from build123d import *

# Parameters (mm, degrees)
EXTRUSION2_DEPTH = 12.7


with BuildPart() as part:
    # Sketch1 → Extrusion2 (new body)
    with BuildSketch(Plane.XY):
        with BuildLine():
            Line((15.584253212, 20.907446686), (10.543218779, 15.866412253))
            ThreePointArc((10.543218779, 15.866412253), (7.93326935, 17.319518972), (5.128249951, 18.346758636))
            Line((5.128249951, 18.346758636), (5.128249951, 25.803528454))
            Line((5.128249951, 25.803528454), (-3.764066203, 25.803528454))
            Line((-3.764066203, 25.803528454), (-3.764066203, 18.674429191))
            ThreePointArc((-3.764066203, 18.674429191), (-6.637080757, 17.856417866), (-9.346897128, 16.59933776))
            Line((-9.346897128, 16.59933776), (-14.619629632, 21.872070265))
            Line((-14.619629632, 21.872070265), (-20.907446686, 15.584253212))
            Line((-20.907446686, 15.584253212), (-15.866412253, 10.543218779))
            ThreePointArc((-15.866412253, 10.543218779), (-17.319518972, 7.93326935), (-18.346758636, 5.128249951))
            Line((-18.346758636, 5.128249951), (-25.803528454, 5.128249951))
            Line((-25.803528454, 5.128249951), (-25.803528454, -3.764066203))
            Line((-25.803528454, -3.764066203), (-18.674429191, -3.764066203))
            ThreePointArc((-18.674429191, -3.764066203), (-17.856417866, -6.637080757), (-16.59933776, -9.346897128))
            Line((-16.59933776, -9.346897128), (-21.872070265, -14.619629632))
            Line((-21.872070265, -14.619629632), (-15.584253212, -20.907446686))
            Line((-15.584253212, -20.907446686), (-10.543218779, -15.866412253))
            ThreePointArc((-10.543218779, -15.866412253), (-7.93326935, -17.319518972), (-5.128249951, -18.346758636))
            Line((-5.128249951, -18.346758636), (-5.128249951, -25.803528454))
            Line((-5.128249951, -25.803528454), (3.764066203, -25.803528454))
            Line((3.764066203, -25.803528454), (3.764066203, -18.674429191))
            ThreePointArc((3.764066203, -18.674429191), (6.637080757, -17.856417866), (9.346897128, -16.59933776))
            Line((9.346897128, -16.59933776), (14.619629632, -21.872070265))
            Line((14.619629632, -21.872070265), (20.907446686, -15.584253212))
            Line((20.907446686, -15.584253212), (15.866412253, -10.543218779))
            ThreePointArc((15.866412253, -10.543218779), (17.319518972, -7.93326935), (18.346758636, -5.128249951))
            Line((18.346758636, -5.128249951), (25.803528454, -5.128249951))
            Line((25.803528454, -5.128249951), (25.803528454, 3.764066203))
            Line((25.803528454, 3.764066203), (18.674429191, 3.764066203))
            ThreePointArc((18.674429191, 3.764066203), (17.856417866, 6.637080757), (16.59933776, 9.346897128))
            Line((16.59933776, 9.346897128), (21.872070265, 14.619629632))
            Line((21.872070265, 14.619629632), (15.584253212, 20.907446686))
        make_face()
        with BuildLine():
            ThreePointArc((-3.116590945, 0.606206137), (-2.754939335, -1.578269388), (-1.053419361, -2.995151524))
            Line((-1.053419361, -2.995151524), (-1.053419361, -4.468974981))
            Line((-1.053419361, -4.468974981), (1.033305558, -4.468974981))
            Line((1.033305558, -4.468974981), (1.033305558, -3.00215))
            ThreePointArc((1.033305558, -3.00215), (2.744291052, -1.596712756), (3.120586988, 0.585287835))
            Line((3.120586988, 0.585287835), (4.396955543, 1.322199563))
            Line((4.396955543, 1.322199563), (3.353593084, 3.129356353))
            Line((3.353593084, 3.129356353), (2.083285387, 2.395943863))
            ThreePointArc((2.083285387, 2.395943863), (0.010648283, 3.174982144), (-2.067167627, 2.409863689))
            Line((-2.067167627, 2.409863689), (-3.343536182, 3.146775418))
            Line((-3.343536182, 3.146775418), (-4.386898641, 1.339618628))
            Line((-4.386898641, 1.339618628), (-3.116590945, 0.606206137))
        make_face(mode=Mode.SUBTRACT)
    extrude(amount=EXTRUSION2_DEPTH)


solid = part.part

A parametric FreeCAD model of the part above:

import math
import FreeCAD as App
import Part
import Sketcher
from FreeCAD import Vector
Q = App.Units.Quantity

doc = App.newDocument("Part")
body = doc.addObject("PartDesign::Body", "Body")

sketch1 = body.newObject("Sketcher::SketchObject", "Sketch")
sketch1.AttachmentSupport = (doc.getObject("XY_Plane"), [""])
sketch1.MapMode = "FlatFace"
sketch1.addGeometry(Part.LineSegment(Vector(15.6, 20.9, 0), Vector(10.5, 15.9, 0)), False)
sketch1.addGeometry(Part.ArcOfCircle(Part.Circle(Vector(0, 0, 0), Vector(0, 0, 1), 19.1), math.radians(56.4), math.radians(74.38)), False)
sketch1.addGeometry(Part.LineSegment(Vector(5.1, 18.3, 0), Vector(5.1, 25.8, 0)), False)
sketch1.addGeometry(Part.LineSegment(Vector(5.1, 25.8, 0), Vector(-3.8, 25.8, 0)), False)
sketch1.addGeometry(Part.LineSegment(Vector(-3.8, 25.8, 0), Vector(-3.8, 18.7, 0)), False)
sketch1.addGeometry(Part.ArcOfCircle(Part.Circle(Vector(0, 0, 0), Vector(0, 0, 1), 19.1), math.radians(101.4), math.radians(119.38)), False)
sketch1.addGeometry(Part.LineSegment(Vector(-9.3, 16.6, 0), Vector(-14.6, 21.9, 0)), False)
sketch1.addGeometry(Part.LineSegment(Vector(-14.6, 21.9, 0), Vector(-20.9, 15.6, 0)), False)
sketch1.addGeometry(Part.LineSegment(Vector(-20.9, 15.6, 0), Vector(-15.9, 10.5, 0)), False)
sketch1.addGeometry(Part.ArcOfCircle(Part.Circle(Vector(0, 0, 0), Vector(0, 0, 1), 19.1), math.radians(146.4), math.radians(164.38)), False)
sketch1.addGeometry(Part.LineSegment(Vector(-18.3, 5.1, 0), Vector(-25.8, 5.1, 0)), False)
sketch1.addGeometry(Part.LineSegment(Vector(-25.8, 5.1, 0), Vector(-25.8, -3.8, 0)), False)
sketch1.addGeometry(Part.LineSegment(Vector(-25.8, -3.8, 0), Vector(-18.7, -3.8, 0)), False)
sketch1.addGeometry(Part.ArcOfCircle(Part.Circle(Vector(0, 0, 0), Vector(0, 0, 1), 19.1), math.radians(-168.6), math.radians(-150.62)), False)
sketch1.addGeometry(Part.LineSegment(Vector(-16.6, -9.3, 0), Vector(-21.9, -14.6, 0)), False)
sketch1.addGeometry(Part.LineSegment(Vector(-21.9, -14.6, 0), Vector(-15.6, -20.9, 0)), False)
sketch1.addGeometry(Part.LineSegment(Vector(-15.6, -20.9, 0), Vector(-10.5, -15.9, 0)), False)
sketch1.addGeometry(Part.ArcOfCircle(Part.Circle(Vector(0, 0, 0), Vector(0, 0, 1), 19.1), math.radians(-123.6), math.radians(-105.62)), False)
sketch1.addGeometry(Part.LineSegment(Vector(-5.1, -18.3, 0), Vector(-5.1, -25.8, 0)), False)
sketch1.addGeometry(Part.LineSegment(Vector(-5.1, -25.8, 0), Vector(3.8, -25.8, 0)), False)
sketch1.addGeometry(Part.LineSegment(Vector(3.8, -25.8, 0), Vector(3.8, -18.7, 0)), False)
sketch1.addGeometry(Part.ArcOfCircle(Part.Circle(Vector(0, 0, 0), Vector(0, 0, 1), 19.1), math.radians(-78.6), math.radians(-60.62)), False)
sketch1.addGeometry(Part.LineSegment(Vector(9.3, -16.6, 0), Vector(14.6, -21.9, 0)), False)
sketch1.addGeometry(Part.LineSegment(Vector(14.6, -21.9, 0), Vector(20.9, -15.6, 0)), False)
sketch1.addGeometry(Part.LineSegment(Vector(20.9, -15.6, 0), Vector(15.9, -10.5, 0)), False)
sketch1.addGeometry(Part.ArcOfCircle(Part.Circle(Vector(0, 0, 0), Vector(0, 0, 1), 19.1), math.radians(-33.6), math.radians(-15.62)), False)
sketch1.addGeometry(Part.LineSegment(Vector(18.3, -5.1, 0), Vector(25.8, -5.1, 0)), False)
sketch1.addGeometry(Part.LineSegment(Vector(25.8, -5.1, 0), Vector(25.8, 3.8, 0)), False)
sketch1.addGeometry(Part.LineSegment(Vector(25.8, 3.8, 0), Vector(18.7, 3.8, 0)), False)
sketch1.addGeometry(Part.ArcOfCircle(Part.Circle(Vector(0, 0, 0), Vector(0, 0, 1), 19.1), math.radians(11.4), math.radians(29.38)), False)
sketch1.addGeometry(Part.LineSegment(Vector(16.6, 9.3, 0), Vector(21.9, 14.6, 0)), False)
sketch1.addGeometry(Part.LineSegment(Vector(21.9, 14.6, 0), Vector(15.6, 20.9, 0)), False)
sketch1.addGeometry(Part.ArcOfCircle(Part.Circle(Vector(0, 0, 0), Vector(0, 0, 1), 3.2), math.radians(169), math.radians(251)), False)
sketch1.addGeometry(Part.LineSegment(Vector(-3.1, 0.6, 0), Vector(-4.4, 1.3, 0)), False)
sketch1.addGeometry(Part.LineSegment(Vector(-4.4, 1.3, 0), Vector(-3.3, 3.1, 0)), False)
sketch1.addGeometry(Part.LineSegment(Vector(-3.3, 3.1, 0), Vector(-2.1, 2.4, 0)), False)
sketch1.addGeometry(Part.ArcOfCircle(Part.Circle(Vector(0, 0, 0), Vector(0, 0, 1), 3.2), math.radians(49), math.radians(131)), False)
sketch1.addGeometry(Part.LineSegment(Vector(2.1, 2.4, 0), Vector(3.4, 3.1, 0)), False)
sketch1.addGeometry(Part.LineSegment(Vector(3.4, 3.1, 0), Vector(4.4, 1.3, 0)), False)
sketch1.addGeometry(Part.LineSegment(Vector(4.4, 1.3, 0), Vector(3.1, 0.6, 0)), False)
sketch1.addGeometry(Part.ArcOfCircle(Part.Circle(Vector(0, 0, 0), Vector(0, 0, 1), 3.2), math.radians(-71), math.radians(11)), False)
sketch1.addGeometry(Part.LineSegment(Vector(1, -3, 0), Vector(1, -4.5, 0)), False)
sketch1.addGeometry(Part.LineSegment(Vector(1, -4.5, 0), Vector(-1.1, -4.5, 0)), False)
sketch1.addGeometry(Part.LineSegment(Vector(-1.1, -4.5, 0), Vector(-1.1, -3, 0)), False)
sketch1.addConstraint(Sketcher.Constraint("Coincident", 0, 2, 1, 1))
sketch1.addConstraint(Sketcher.Constraint("Coincident", 1, 2, 2, 1))
sketch1.addConstraint(Sketcher.Constraint("Coincident", 2, 2, 3, 1))
sketch1.addConstraint(Sketcher.Constraint("Coincident", 3, 2, 4, 1))
sketch1.addConstraint(Sketcher.Constraint("Coincident", 4, 2, 5, 1))
sketch1.addConstraint(Sketcher.Constraint("Coincident", 5, 2, 6, 1))
sketch1.addConstraint(Sketcher.Constraint("Coincident", 6, 2, 7, 1))
sketch1.addConstraint(Sketcher.Constraint("Coincident", 7, 2, 8, 1))
sketch1.addConstraint(Sketcher.Constraint("Coincident", 8, 2, 9, 1))
sketch1.addConstraint(Sketcher.Constraint("Coincident", 9, 2, 10, 1))
sketch1.addConstraint(Sketcher.Constraint("Coincident", 10, 2, 11, 1))
sketch1.addConstraint(Sketcher.Constraint("Coincident", 11, 2, 12, 1))
sketch1.addConstraint(Sketcher.Constraint("Coincident", 12, 2, 13, 1))
sketch1.addConstraint(Sketcher.Constraint("Coincident", 13, 2, 14, 1))
sketch1.addConstraint(Sketcher.Constraint("Coincident", 14, 2, 15, 1))
sketch1.addConstraint(Sketcher.Constraint("Coincident", 15, 2, 16, 1))
sketch1.addConstraint(Sketcher.Constraint("Coincident", 16, 2, 17, 1))
sketch1.addConstraint(Sketcher.Constraint("Coincident", 17, 2, 18, 1))
sketch1.addConstraint(Sketcher.Constraint("Coincident", 18, 2, 19, 1))
sketch1.addConstraint(Sketcher.Constraint("Coincident", 19, 2, 20, 1))
sketch1.addConstraint(Sketcher.Constraint("Coincident", 20, 2, 21, 1))
sketch1.addConstraint(Sketcher.Constraint("Coincident", 21, 2, 22, 1))
sketch1.addConstraint(Sketcher.Constraint("Coincident", 22, 2, 23, 1))
sketch1.addConstraint(Sketcher.Constraint("Coincident", 23, 2, 24, 1))
sketch1.addConstraint(Sketcher.Constraint("Coincident", 24, 2, 25, 1))
sketch1.addConstraint(Sketcher.Constraint("Coincident", 25, 2, 26, 1))
sketch1.addConstraint(Sketcher.Constraint("Coincident", 26, 2, 27, 1))
sketch1.addConstraint(Sketcher.Constraint("Coincident", 27, 2, 28, 1))
sketch1.addConstraint(Sketcher.Constraint("Coincident", 28, 2, 29, 1))
sketch1.addConstraint(Sketcher.Constraint("Coincident", 29, 2, 30, 1))
sketch1.addConstraint(Sketcher.Constraint("Coincident", 30, 2, 31, 1))
sketch1.addConstraint(Sketcher.Constraint("Coincident", 31, 2, 0, 1))
sketch1.addConstraint(Sketcher.Constraint("Coincident", 32, 1, 33, 1))
sketch1.addConstraint(Sketcher.Constraint("Coincident", 33, 2, 34, 1))
sketch1.addConstraint(Sketcher.Constraint("Coincident", 34, 2, 35, 1))
sketch1.addConstraint(Sketcher.Constraint("Coincident", 35, 2, 36, 2))
sketch1.addConstraint(Sketcher.Constraint("Coincident", 36, 1, 37, 1))
sketch1.addConstraint(Sketcher.Constraint("Coincident", 37, 2, 38, 1))
sketch1.addConstraint(Sketcher.Constraint("Coincident", 38, 2, 39, 1))
sketch1.addConstraint(Sketcher.Constraint("Coincident", 39, 2, 40, 2))
sketch1.addConstraint(Sketcher.Constraint("Coincident", 40, 1, 41, 1))
sketch1.addConstraint(Sketcher.Constraint("Coincident", 41, 2, 42, 1))
sketch1.addConstraint(Sketcher.Constraint("Coincident", 42, 2, 43, 1))
sketch1.addConstraint(Sketcher.Constraint("Coincident", 43, 2, 32, 2))
sketch1.addConstraint(Sketcher.Constraint("Vertical", 2))
sketch1.addConstraint(Sketcher.Constraint("Horizontal", 3))
sketch1.addConstraint(Sketcher.Constraint("Vertical", 4))
sketch1.addConstraint(Sketcher.Constraint("Horizontal", 10))
sketch1.addConstraint(Sketcher.Constraint("Vertical", 11))
sketch1.addConstraint(Sketcher.Constraint("Horizontal", 12))
sketch1.addConstraint(Sketcher.Constraint("Vertical", 18))
sketch1.addConstraint(Sketcher.Constraint("Horizontal", 19))
sketch1.addConstraint(Sketcher.Constraint("Vertical", 20))
sketch1.addConstraint(Sketcher.Constraint("Horizontal", 26))
sketch1.addConstraint(Sketcher.Constraint("Vertical", 27))
sketch1.addConstraint(Sketcher.Constraint("Horizontal", 28))
sketch1.addConstraint(Sketcher.Constraint("Vertical", 41))
sketch1.addConstraint(Sketcher.Constraint("Horizontal", 42))
sketch1.addConstraint(Sketcher.Constraint("Vertical", 43))
sketch1.addConstraint(Sketcher.Constraint("Coincident", 1, 3, -1, 1))
sketch1.addConstraint(Sketcher.Constraint("Coincident", 5, 3, -1, 1))
sketch1.addConstraint(Sketcher.Constraint("Coincident", 9, 3, -1, 1))
sketch1.addConstraint(Sketcher.Constraint("Coincident", 13, 3, -1, 1))
sketch1.addConstraint(Sketcher.Constraint("Coincident", 17, 3, -1, 1))
sketch1.addConstraint(Sketcher.Constraint("Coincident", 21, 3, -1, 1))
sketch1.addConstraint(Sketcher.Constraint("Coincident", 25, 3, -1, 1))
sketch1.addConstraint(Sketcher.Constraint("Coincident", 29, 3, -1, 1))
sketch1.addConstraint(Sketcher.Constraint("Coincident", 32, 3, -1, 1))
sketch1.addConstraint(Sketcher.Constraint("Coincident", 36, 3, -1, 1))
sketch1.addConstraint(Sketcher.Constraint("Coincident", 40, 3, -1, 1))
sketch1.addConstraint(Sketcher.Constraint("Equal", 1, 5))
sketch1.addConstraint(Sketcher.Constraint("Equal", 5, 9))
sketch1.addConstraint(Sketcher.Constraint("Equal", 9, 13))
sketch1.addConstraint(Sketcher.Constraint("Equal", 13, 17))
sketch1.addConstraint(Sketcher.Constraint("Equal", 17, 21))
sketch1.addConstraint(Sketcher.Constraint("Equal", 21, 25))
sketch1.addConstraint(Sketcher.Constraint("Equal", 25, 29))
sketch1.addConstraint(Sketcher.Constraint("Equal", 32, 36))
sketch1.addConstraint(Sketcher.Constraint("Equal", 36, 40))
sketch1.addConstraint(Sketcher.Constraint("Symmetric", 2, 2, 18, 2, -1, 1))
sketch1.addConstraint(Sketcher.Constraint("Symmetric", 6, 2, 22, 2, -1, 1))
sketch1.addConstraint(Sketcher.Constraint("Symmetric", 7, 2, 23, 2, -1, 1))
sketch1.addConstraint(Sketcher.Constraint("Symmetric", 10, 2, 26, 2, -1, 1))
sketch1.addConstraint(Sketcher.Constraint("Symmetric", 14, 2, 30, 2, -1, 1))
sketch1.addConstraint(Sketcher.Constraint("Symmetric", 15, 2, 31, 2, -1, 1))
sketch1.addConstraint(Sketcher.Constraint("Perpendicular", 0, 6))
sketch1.addConstraint(Sketcher.Constraint("Perpendicular", 6, 7))
sketch1.addConstraint(Sketcher.Constraint("Perpendicular", 7, 8))
sketch1.addConstraint(Sketcher.Constraint("Perpendicular", 8, 14))
sketch1.addConstraint(Sketcher.Constraint("Perpendicular", 14, 15))
sketch1.addConstraint(Sketcher.Constraint("Perpendicular", 15, 16))
sketch1.addConstraint(Sketcher.Constraint("Perpendicular", 16, 22))
sketch1.addConstraint(Sketcher.Constraint("Perpendicular", 23, 24))
sketch1.addConstraint(Sketcher.Constraint("Perpendicular", 24, 30))
sketch1.addConstraint(Sketcher.Constraint("Perpendicular", 33, 34))
sketch1.addConstraint(Sketcher.Constraint("Perpendicular", 34, 35))
sketch1.addConstraint(Sketcher.Constraint("Perpendicular", 37, 38))
sketch1.addConstraint(Sketcher.Constraint("Perpendicular", 38, 39))
sketch1.addConstraint(Sketcher.Constraint("Equal", 3, 19))
sketch1.addConstraint(Sketcher.Constraint("Equal", 12, 28))
sketch1.addConstraint(Sketcher.Constraint("Equal", 26, 2))
sketch1.addConstraint(Sketcher.Constraint("Equal", 28, 4))
sketch1.addConstraint(Sketcher.Constraint("Equal", 19, 11))
sketch1.addConstraint(Sketcher.Constraint("Equal", 0, 8))
sketch1.addConstraint(Sketcher.Constraint("Equal", 6, 14))
sketch1.addConstraint(Sketcher.Constraint("Equal", 7, 15))
sketch1.addConstraint(Sketcher.Constraint("Equal", 33, 37))
sketch1.addConstraint(Sketcher.Constraint("Equal", 34, 38))
sketch1.addConstraint(Sketcher.Constraint("Equal", 35, 39))
sketch1.addConstraint(Sketcher.Constraint("Radius", 1, Q("0.75 in")))
sketch1.addConstraint(Sketcher.Constraint("Angle", 0, Q("-135 deg")))
sketch1.addConstraint(Sketcher.Constraint("Angle", 33, Q("150 deg")))
sketch1.addConstraint(Sketcher.Constraint("Angle", 37, Q("30 deg")))
sketch1.addConstraint(Sketcher.Constraint("Radius", 32, Q("0.125 in")))
sketch1.addConstraint(Sketcher.Constraint("DistanceX", 12, 1, 12, 2, Q("7.129099 mm")))
sketch1.addConstraint(Sketcher.Constraint("Distance", 0, Q("7.129099 mm")))
sketch1.addConstraint(Sketcher.Constraint("DistanceX", 10, 2, 10, 1, Q("7.45677 mm")))
sketch1.addConstraint(Sketcher.Constraint("DistanceX", 33, 2, -1, 1, Q("4.386899 mm")))
sketch1.addConstraint(Sketcher.Constraint("DistanceY", -1, 1, 38, 2, Q("1.3222 mm")))
sketch1.addConstraint(Sketcher.Constraint("DistanceX", 10, 2, 6, 2, Q("11.183899 mm")))
sketch1.addConstraint(Sketcher.Constraint("DistanceX", 36, 1, 39, 2, Q("1.037302 mm")))
sketch1.addConstraint(Sketcher.Constraint("DistanceY", 40, 1, 43, 2, Q("0.006998 mm")))
sketch1.addConstraint(Sketcher.Constraint("Distance", 6, Q("7.45677 mm")))
sketch1.addConstraint(Sketcher.Constraint("DistanceX", 3, 2, 3, 1, Q("8.892316 mm")))
sketch1.addConstraint(Sketcher.Constraint("DistanceX", 42, 2, 42, 1, Q("2.086725 mm")))
sketch1.addConstraint(Sketcher.Constraint("DistanceY", 41, 2, 41, 1, Q("1.466825 mm")))
pad1 = body.newObject("PartDesign::Pad", "Pad")
pad1.Profile = sketch1
pad1.Length = Q("0.5 in")

doc.recompute()
